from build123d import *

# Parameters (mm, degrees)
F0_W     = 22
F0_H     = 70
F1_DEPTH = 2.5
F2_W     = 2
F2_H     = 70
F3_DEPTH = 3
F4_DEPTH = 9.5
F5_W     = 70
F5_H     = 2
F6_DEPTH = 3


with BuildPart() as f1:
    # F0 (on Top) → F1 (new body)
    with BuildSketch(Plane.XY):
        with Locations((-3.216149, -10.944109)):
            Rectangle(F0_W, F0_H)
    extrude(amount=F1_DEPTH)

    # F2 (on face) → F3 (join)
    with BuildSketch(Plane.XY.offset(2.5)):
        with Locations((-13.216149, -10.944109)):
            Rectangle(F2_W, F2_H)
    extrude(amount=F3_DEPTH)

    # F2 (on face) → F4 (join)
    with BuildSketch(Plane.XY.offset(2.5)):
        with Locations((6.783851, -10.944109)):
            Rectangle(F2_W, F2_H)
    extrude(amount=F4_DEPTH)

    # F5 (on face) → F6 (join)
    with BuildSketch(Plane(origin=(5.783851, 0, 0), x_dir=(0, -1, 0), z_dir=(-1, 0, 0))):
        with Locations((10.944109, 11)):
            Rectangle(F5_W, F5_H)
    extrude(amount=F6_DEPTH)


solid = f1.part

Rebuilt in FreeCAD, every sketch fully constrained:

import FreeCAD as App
import Part
import Sketcher

V = App.Vector


def add_polygon(sketch, points):
    """Adds a closed chain of lines whose ends are joined by coincident constraints."""
    first, n = sketch.GeometryCount, len(points)
    for a, b in zip(points, points[1:] + points[:1]):
        sketch.addGeometry(Part.LineSegment(App.Vector(*a, 0), App.Vector(*b, 0)), False)
    for i in range(n):
        sketch.addConstraint(Sketcher.Constraint("Coincident", first + i, 2, first + (i + 1) % n, 1))

doc = App.newDocument("Part")
params = doc.addObject("Spreadsheet::Sheet", "Params")
for row, (alias, value) in enumerate([
    ("sketch1_width", "22 mm"),
    ("sketch1_height", "70 mm"),
    ("pad1_length", "2.5 mm"),
    ("sketch2_width", "2 mm"),
    ("sketch2_height", "70 mm"),
    ("pad2_length", "3 mm"),
    ("sketch3_width", "2 mm"),
    ("sketch3_height", "70 mm"),
    ("pad3_length", "9.5 mm"),
    ("sketch4_width", "70 mm"),
    ("sketch4_height", "2 mm"),
    ("pad4_length", "3 mm"),
], start=1):
    params.set(f"A{row}", alias)
    params.set(f"B{row}", "=" + value)
    params.setAlias(f"B{row}", alias)

body = doc.addObject("PartDesign::Body", "Body")

sketch1 = doc.addObject("Sketcher::SketchObject", "Sketch")
body.addObject(sketch1)
sketch1.AttachmentSupport = (doc.XY_Plane, [""])
sketch1.MapMode = "FlatFace"
add_polygon(sketch1, [(-14, 24), (-14, -46), (8, -46), (8, 24)])
sketch1.addConstraint(Sketcher.Constraint("Vertical", 0))
sketch1.addConstraint(Sketcher.Constraint("Horizontal", 1))
sketch1.addConstraint(Sketcher.Constraint("Vertical", 2))
sketch1.addConstraint(Sketcher.Constraint("Horizontal", 3))
sketch1.addConstraint(Sketcher.Constraint("DistanceX", 1, 1, 1, 2, 22.0))
sketch1.addConstraint(Sketcher.Constraint("DistanceY", 0, 2, 0, 1, 70.0))
sketch1.addConstraint(Sketcher.Constraint("DistanceX", 0, 2, -1, 1, 14.216149))
sketch1.addConstraint(Sketcher.Constraint("DistanceY", 0, 2, -1, 1, 45.944109))
sketch1.setExpression("Constraints[8]", "Params.sketch1_width")
sketch1.setExpression("Constraints[9]", "Params.sketch1_height")
pad1 = doc.addObject("PartDesign::Pad", "Pad")
body.addObject(pad1)
pad1.Profile = sketch1
pad1.setExpression("Length", "Params.pad1_length")

sketch2 = doc.addObject("Sketcher::SketchObject", "Sketch001")
body.addObject(sketch2)
sketch2.AttachmentSupport = (doc.XY_Plane, [""])
sketch2.MapMode = "FlatFace"
sketch2.AttachmentOffset = App.Placement(V(0, 0, 2.5), App.Rotation())
add_polygon(sketch2, [(-14.2, 24.1), (-14.2, -45.9), (-12.2, -45.9), (-12.2, 24.1)])
sketch2.addConstraint(Sketcher.Constraint("Vertical", 0))
sketch2.addConstraint(Sketcher.Constraint("Horizontal", 1))
sketch2.addConstraint(Sketcher.Constraint("Vertical", 2))
sketch2.addConstraint(Sketcher.Constraint("Horizontal", 3))
sketch2.addConstraint(Sketcher.Constraint("DistanceX", 1, 1, 1, 2, 2.0))
sketch2.addConstraint(Sketcher.Constraint("DistanceY", 0, 2, 0, 1, 70.0))
sketch2.addConstraint(Sketcher.Constraint("DistanceX", 0, 2, -1, 1, 14.216149))
sketch2.addConstraint(Sketcher.Constraint("DistanceY", 0, 2, -1, 1, 45.944109))
sketch2.setExpression("Constraints[8]", "Params.sketch2_width")
sketch2.setExpression("Constraints[9]", "Params.sketch2_height")
pad2 = doc.addObject("PartDesign::Pad", "Pad001")
body.addObject(pad2)
pad2.Profile = sketch2
pad2.setExpression("Length", "Params.pad2_length")

sketch3 = doc.addObject("Sketcher::SketchObject", "Sketch002")
body.addObject(sketch3)
sketch3.AttachmentSupport = (doc.XY_Plane, [""])
sketch3.MapMode = "FlatFace"
sketch3.AttachmentOffset = App.Placement(V(0, 0, 2.5), App.Rotation())
add_polygon(sketch3, [(5.8, 24.1), (5.8, -45.9), (7.8, -45.9), (7.8, 24.1)])
sketch3.addConstraint(Sketcher.Constraint("Vertical", 0))
sketch3.addConstraint(Sketcher.Constraint("Horizontal", 1))
sketch3.addConstraint(Sketcher.Constraint("Vertical", 2))
sketch3.addConstraint(Sketcher.Constraint("Horizontal", 3))
sketch3.addConstraint(Sketcher.Constraint("DistanceX", 1, 1, 1, 2, 2.0))
sketch3.addConstraint(Sketcher.Constraint("DistanceY", 0, 2, 0, 1, 70.0))
sketch3.addConstraint(Sketcher.Constraint("DistanceX", -1, 1, 0, 2, 5.783851))
sketch3.addConstraint(Sketcher.Constraint("DistanceY", 0, 2, -1, 1, 45.944109))
sketch3.setExpression("Constraints[8]", "Params.sketch3_width")
sketch3.setExpression("Constraints[9]", "Params.sketch3_height")
pad3 = doc.addObject("PartDesign::Pad", "Pad002")
body.addObject(pad3)
pad3.Profile = sketch3
pad3.setExpression("Length", "Params.pad3_length")

sketch4 = doc.addObject("Sketcher::SketchObject", "Sketch003")
body.addObject(sketch4)
sketch4.AttachmentSupport = (doc.YZ_Plane, [""])
sketch4.MapMode = "FlatFace"
sketch4.AttachmentOffset = App.Placement(V(0, 0, 5.783851), App.Rotation())
add_polygon(sketch4, [(24.1, 12), (24.1, 10), (-45.9, 10), (-45.9, 12)])
sketch4.addConstraint(Sketcher.Constraint("Vertical", 0))
sketch4.addConstraint(Sketcher.Constraint("Horizontal", 1))
sketch4.addConstraint(Sketcher.Constraint("Vertical", 2))
sketch4.addConstraint(Sketcher.Constraint("Horizontal", 3))
sketch4.addConstraint(Sketcher.Constraint("DistanceX", 1, 2, 1, 1, 70.0))
sketch4.addConstraint(Sketcher.Constraint("DistanceY", 0, 2, 0, 1, 2.0))
sketch4.addConstraint(Sketcher.Constraint("DistanceY", -1, 1, 0, 2, 10.0))
sketch4.addConstraint(Sketcher.Constraint("DistanceX", -1, 1, 0, 2, 24.055891))
sketch4.setExpression("Constraints[8]", "Params.sketch4_width")
sketch4.setExpression("Constraints[9]", "Params.sketch4_height")
pad4 = doc.addObject("PartDesign::Pad", "Pad003")
body.addObject(pad4)
pad4.Profile = sketch4
pad4.setExpression("Length", "Params.pad4_length")
pad4.Reversed = True

doc.recompute()
